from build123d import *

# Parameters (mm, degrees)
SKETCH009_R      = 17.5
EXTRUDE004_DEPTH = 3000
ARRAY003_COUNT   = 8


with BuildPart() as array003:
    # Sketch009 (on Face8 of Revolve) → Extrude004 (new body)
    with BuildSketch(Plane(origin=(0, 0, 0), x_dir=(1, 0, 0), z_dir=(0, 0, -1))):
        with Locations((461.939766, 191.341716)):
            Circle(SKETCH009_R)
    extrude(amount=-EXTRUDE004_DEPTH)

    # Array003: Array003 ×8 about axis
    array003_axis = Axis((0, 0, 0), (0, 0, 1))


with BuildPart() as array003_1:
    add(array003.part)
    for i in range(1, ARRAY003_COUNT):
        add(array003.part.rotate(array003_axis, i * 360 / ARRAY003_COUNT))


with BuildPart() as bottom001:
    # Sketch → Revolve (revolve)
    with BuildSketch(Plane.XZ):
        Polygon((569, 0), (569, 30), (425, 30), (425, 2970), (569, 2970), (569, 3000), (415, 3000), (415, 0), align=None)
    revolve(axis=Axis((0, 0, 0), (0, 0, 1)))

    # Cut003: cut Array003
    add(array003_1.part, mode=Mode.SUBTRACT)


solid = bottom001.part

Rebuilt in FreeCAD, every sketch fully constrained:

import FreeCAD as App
import Part
import Sketcher
from FreeCAD import Vector
Q = App.Units.Quantity


def add_polygon(sketch, points):
    """Adds a closed chain of lines whose ends are joined by coincident constraints."""
    first, n = sketch.GeometryCount, len(points)
    for a, b in zip(points, points[1:] + points[:1]):
        sketch.addGeometry(Part.LineSegment(App.Vector(*a, 0), App.Vector(*b, 0)), False)
    for i in range(n):
        sketch.addConstraint(Sketcher.Constraint("Coincident", first + i, 2, first + (i + 1) % n, 1))

doc = App.newDocument("Part")
body = doc.addObject("PartDesign::Body", "Body")

sketch1 = body.newObject("Sketcher::SketchObject", "Sketch")
sketch1.AttachmentSupport = (doc.getObject("XY_Plane"), [""])
sketch1.MapMode = "FlatFace"
sketch1.addGeometry(Part.Circle(Vector(462, -191, 0), Vector(0, 0, 1), 18), False)
sketch1.addConstraint([
    Sketcher.Constraint("Diameter", 0, Q("35 mm")),
    Sketcher.Constraint("DistanceX", -1, 1, 0, 3, Q("461.939766 mm")),
    Sketcher.Constraint("DistanceY", 0, 3, -1, 1, Q("191.341716 mm")),
])
pad1 = body.newObject("PartDesign::Pad", "Pad")
pad1.Profile = sketch1
pad1.Length = 3000
body2 = doc.addObject("PartDesign::Body", "Body001")
body2.AllowCompound = True
doc.recompute()

body2.BaseFeature = body
doc.recompute()

body3 = doc.addObject("PartDesign::Body", "Body002")
body3.BaseFeature = body
body3.Placement = App.Placement(Vector(0, 0, 0), App.Rotation(Vector(0, 0, 1), 45))
boolean = body2.newObject("PartDesign::Boolean", "Boolean")
boolean.Type = "Fuse"
boolean.addObjects([body3])
doc.recompute()

body4 = doc.addObject("PartDesign::Body", "Body003")
body4.BaseFeature = body
body4.Placement = App.Placement(Vector(0, 0, 0), App.Rotation(Vector(0, 0, 1), 90))
boolean2 = body2.newObject("PartDesign::Boolean", "Boolean001")
boolean2.Type = "Fuse"
boolean2.addObjects([body4])
doc.recompute()

body5 = doc.addObject("PartDesign::Body", "Body004")
body5.BaseFeature = body
body5.Placement = App.Placement(Vector(0, 0, 0), App.Rotation(Vector(0, 0, 1), 135))
boolean3 = body2.newObject("PartDesign::Boolean", "Boolean002")
boolean3.Type = "Fuse"
boolean3.addObjects([body5])
doc.recompute()

body6 = doc.addObject("PartDesign::Body", "Body005")
body6.BaseFeature = body
body6.Placement = App.Placement(Vector(0, 0, 0), App.Rotation(Vector(0, 0, 1), 180))
boolean4 = body2.newObject("PartDesign::Boolean", "Boolean003")
boolean4.Type = "Fuse"
boolean4.addObjects([body6])
doc.recompute()

body7 = doc.addObject("PartDesign::Body", "Body006")
body7.BaseFeature = body
body7.Placement = App.Placement(Vector(0, 0, 0), App.Rotation(Vector(0, 0, 1), 225))
boolean5 = body2.newObject("PartDesign::Boolean", "Boolean004")
boolean5.Type = "Fuse"
boolean5.addObjects([body7])
doc.recompute()

body8 = doc.addObject("PartDesign::Body", "Body007")
body8.BaseFeature = body
body8.Placement = App.Placement(Vector(0, 0, 0), App.Rotation(Vector(0, 0, 1), 270))
boolean6 = body2.newObject("PartDesign::Boolean", "Boolean005")
boolean6.Type = "Fuse"
boolean6.addObjects([body8])
doc.recompute()

body.Placement = App.Placement(Vector(0, 0, 0), App.Rotation(Vector(0, 0, 1), 315))
boolean7 = body2.newObject("PartDesign::Boolean", "Boolean006")
boolean7.Type = "Fuse"
boolean7.addObjects([body])
body9 = doc.addObject("PartDesign::Body", "Body008")

sketch2 = body9.newObject("Sketcher::SketchObject", "Sketch001")
sketch2.AttachmentSupport = (doc.getObject("XZ_Plane008"), [""])
sketch2.MapMode = "FlatFace"
add_polygon(sketch2, [(569, 0), (569, 30), (425, 30), (425, 2970), (569, 2970), (569, 3000), (415, 3000), (415, 0)])
sketch2.addConstraint([
    Sketcher.Constraint("Vertical", 0),
    Sketcher.Constraint("Horizontal", 1),
    Sketcher.Constraint("Vertical", 2),
    Sketcher.Constraint("Horizontal", 3),
    Sketcher.Constraint("Vertical", 4),
    Sketcher.Constraint("Horizontal", 5),
    Sketcher.Constraint("Vertical", 6),
    Sketcher.Constraint("Horizontal", 7),
    Sketcher.Constraint("PointOnObject", 6, 2, -1),
    Sketcher.Constraint("Vertical", 0, 2, 3, 2),
    Sketcher.Constraint("Equal", 0, 4),
    Sketcher.Constraint("DistanceX", 1, 2, 1, 1, Q("144 mm")),
    Sketcher.Constraint("DistanceX", 5, 2, 5, 1, Q("154 mm")),
    Sketcher.Constraint("DistanceY", 0, 1, 0, 2, Q("30 mm")),
    Sketcher.Constraint("DistanceY", 2, 1, 2, 2, Q("2940 mm")),
    Sketcher.Constraint("DistanceX", -1, 1, 0, 2, Q("569 mm")),
])
revolution = body9.newObject("PartDesign::Revolution", "Revolution")
revolution.Profile = sketch2
revolution.ReferenceAxis = (sketch2, ["V_Axis"])
revolution.Angle = 360
doc.recompute()

boolean8 = body9.newObject("PartDesign::Boolean", "Boolean007")
boolean8.Type = "Cut"
boolean8.addObjects([body2])

doc.recompute()
